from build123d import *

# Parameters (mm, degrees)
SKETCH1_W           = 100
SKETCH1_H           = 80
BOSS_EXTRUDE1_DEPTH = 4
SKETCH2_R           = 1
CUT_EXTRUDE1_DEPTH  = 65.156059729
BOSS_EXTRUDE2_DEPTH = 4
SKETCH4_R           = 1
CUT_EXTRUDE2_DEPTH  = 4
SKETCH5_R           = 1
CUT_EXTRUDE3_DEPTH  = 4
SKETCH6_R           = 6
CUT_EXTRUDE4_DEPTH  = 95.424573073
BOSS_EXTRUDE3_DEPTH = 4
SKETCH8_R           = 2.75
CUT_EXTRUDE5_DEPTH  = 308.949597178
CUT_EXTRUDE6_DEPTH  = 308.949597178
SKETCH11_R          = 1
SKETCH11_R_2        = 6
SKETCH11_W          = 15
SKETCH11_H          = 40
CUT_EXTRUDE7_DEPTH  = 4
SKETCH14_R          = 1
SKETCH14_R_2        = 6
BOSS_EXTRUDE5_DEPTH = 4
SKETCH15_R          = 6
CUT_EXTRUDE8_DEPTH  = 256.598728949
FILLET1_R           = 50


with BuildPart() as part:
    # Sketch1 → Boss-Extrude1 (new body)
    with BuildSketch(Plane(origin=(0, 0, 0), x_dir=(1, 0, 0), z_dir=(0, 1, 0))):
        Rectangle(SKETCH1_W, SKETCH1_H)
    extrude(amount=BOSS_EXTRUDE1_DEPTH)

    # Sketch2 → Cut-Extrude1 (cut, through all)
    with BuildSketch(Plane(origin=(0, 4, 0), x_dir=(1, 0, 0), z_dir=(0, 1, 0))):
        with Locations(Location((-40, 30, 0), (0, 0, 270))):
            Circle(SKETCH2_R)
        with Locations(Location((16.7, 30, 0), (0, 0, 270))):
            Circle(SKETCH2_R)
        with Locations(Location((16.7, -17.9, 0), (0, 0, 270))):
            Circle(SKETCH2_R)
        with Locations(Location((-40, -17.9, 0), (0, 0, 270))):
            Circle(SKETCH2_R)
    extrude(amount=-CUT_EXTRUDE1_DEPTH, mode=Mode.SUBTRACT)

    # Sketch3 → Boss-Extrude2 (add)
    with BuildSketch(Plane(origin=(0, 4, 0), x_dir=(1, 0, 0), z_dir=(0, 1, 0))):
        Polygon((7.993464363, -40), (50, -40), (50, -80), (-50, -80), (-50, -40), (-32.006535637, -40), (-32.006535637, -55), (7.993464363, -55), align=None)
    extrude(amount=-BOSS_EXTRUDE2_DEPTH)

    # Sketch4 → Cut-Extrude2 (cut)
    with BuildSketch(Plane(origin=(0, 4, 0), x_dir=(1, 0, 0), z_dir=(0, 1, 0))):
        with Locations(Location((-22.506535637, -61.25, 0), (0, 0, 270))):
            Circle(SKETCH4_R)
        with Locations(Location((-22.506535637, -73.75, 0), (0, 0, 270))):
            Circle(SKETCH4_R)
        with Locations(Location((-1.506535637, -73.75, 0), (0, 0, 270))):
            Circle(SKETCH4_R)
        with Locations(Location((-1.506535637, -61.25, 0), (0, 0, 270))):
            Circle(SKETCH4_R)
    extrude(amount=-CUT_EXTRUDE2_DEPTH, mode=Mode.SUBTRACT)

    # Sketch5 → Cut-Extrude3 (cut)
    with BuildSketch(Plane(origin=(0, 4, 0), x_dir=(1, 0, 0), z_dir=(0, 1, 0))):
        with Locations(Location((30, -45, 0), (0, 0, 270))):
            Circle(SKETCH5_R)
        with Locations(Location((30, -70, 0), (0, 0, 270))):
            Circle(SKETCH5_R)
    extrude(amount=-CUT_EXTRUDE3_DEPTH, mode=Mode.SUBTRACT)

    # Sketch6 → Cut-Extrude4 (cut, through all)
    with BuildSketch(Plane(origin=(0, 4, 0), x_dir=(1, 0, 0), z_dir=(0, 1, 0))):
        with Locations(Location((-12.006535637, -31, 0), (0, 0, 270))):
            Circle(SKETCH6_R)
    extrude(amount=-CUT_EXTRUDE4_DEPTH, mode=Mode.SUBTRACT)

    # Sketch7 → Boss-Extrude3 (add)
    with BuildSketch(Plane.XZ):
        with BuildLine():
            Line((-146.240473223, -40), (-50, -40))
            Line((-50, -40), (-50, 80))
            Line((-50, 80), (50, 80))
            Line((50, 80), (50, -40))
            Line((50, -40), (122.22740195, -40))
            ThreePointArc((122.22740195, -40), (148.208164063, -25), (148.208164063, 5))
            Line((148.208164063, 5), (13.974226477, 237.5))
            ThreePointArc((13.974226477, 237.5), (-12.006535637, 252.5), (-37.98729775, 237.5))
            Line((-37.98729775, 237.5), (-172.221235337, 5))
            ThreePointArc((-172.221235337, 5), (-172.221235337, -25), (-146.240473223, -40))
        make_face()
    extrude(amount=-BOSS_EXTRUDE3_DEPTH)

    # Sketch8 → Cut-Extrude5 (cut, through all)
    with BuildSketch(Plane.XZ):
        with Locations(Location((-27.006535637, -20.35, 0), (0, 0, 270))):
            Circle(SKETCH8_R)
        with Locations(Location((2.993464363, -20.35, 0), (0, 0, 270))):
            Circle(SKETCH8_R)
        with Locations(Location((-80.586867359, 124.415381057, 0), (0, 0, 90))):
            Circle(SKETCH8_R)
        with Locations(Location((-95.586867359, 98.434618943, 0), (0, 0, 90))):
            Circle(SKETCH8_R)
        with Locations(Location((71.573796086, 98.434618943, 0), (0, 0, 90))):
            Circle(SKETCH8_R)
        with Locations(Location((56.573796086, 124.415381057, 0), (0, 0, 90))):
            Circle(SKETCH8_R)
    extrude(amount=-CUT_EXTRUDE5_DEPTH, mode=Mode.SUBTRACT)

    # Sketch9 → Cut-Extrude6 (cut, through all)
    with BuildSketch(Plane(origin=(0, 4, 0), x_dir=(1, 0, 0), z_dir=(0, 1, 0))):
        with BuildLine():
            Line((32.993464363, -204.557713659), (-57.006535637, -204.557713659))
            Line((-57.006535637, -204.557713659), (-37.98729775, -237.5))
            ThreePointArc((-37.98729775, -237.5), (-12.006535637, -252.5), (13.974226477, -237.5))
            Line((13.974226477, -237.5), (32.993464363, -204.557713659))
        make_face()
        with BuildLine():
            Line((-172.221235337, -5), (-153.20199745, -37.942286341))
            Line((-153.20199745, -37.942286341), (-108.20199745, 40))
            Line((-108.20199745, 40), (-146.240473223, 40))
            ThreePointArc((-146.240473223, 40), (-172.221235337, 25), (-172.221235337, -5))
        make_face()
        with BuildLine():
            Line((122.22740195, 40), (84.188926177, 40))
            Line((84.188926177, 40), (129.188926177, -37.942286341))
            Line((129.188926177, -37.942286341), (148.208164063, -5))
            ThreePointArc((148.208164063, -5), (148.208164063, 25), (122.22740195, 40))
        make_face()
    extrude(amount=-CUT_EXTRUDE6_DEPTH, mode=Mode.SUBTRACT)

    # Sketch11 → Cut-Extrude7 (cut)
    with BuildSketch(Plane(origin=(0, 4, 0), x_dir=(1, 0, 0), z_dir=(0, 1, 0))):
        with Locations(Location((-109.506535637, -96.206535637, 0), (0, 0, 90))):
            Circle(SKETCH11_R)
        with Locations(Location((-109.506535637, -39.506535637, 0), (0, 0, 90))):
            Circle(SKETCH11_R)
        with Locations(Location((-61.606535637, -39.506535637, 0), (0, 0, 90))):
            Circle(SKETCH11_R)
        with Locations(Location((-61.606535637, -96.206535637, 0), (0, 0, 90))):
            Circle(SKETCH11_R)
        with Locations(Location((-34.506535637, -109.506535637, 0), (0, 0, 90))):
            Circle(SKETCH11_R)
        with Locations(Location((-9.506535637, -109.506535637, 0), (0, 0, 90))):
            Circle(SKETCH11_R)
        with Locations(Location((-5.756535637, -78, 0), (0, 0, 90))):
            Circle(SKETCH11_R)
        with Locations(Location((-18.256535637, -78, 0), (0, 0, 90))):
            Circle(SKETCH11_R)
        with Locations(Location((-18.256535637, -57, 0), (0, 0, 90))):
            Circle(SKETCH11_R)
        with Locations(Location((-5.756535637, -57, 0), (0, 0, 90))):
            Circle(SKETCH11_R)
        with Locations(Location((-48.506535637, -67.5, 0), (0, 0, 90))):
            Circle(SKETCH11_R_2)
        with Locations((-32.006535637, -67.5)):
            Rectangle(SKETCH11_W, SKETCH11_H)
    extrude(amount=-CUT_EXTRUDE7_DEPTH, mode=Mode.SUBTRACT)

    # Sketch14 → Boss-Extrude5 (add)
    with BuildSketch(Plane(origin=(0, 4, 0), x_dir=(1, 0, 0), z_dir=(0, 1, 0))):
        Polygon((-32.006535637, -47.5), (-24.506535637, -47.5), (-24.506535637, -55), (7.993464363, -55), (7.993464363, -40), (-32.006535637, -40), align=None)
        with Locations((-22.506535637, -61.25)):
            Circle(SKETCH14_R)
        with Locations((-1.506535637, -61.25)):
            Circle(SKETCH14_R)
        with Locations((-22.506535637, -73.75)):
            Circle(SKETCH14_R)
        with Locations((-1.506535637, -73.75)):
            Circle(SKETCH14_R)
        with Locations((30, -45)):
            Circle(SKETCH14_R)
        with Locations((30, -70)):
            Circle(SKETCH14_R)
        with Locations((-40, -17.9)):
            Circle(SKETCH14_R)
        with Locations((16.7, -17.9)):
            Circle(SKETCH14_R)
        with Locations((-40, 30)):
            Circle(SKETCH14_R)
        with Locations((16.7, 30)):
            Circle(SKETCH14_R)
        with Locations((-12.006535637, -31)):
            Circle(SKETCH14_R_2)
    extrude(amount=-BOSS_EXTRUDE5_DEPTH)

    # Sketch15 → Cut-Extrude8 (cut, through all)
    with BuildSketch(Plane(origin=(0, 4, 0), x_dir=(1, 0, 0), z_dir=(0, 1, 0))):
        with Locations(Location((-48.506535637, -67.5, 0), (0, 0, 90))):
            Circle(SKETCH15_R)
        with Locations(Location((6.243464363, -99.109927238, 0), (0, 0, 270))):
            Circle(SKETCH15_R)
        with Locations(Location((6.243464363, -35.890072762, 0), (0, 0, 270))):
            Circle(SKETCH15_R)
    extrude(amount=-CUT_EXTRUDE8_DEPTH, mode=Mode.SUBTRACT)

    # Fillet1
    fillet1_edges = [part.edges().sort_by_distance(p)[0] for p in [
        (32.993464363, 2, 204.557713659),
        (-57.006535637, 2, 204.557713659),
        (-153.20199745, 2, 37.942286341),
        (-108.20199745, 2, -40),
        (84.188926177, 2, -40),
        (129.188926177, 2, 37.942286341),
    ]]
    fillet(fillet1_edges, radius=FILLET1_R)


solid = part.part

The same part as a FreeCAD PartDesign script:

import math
import FreeCAD as App
import Part
import Sketcher

V = App.Vector
Q = App.Units.Quantity


def edges_at(feature, points):
    """Names of the edges that pass closest to the given points."""
    edges = feature.Shape.Edges
    near = lambda p: min(range(len(edges)), key=lambda i: edges[i].distToShape(Part.Vertex(*p))[0])
    return sorted({f"Edge{near(p) + 1}" for p in points})


def add_polygon(sketch, points):
    """Adds a closed chain of lines whose ends are joined by coincident constraints."""
    first, n = sketch.GeometryCount, len(points)
    for a, b in zip(points, points[1:] + points[:1]):
        sketch.addGeometry(Part.LineSegment(App.Vector(*a, 0), App.Vector(*b, 0)), False)
    for i in range(n):
        sketch.addConstraint(Sketcher.Constraint("Coincident", first + i, 2, first + (i + 1) % n, 1))

doc = App.newDocument("Part")
body = doc.addObject("PartDesign::Body", "Body")

# Sketch on XZ plane
sketch1 = doc.addObject("Sketcher::SketchObject", "Sketch")
body.addObject(sketch1)
sketch1.AttachmentSupport = (doc.XZ_Plane, [""])
sketch1.MapMode = "FlatFace"
add_polygon(sketch1, [(-50, -40), (-50, 40), (50, 40), (50, -40)])  # lines 0-3
sketch1.addConstraint([
    Sketcher.Constraint("Vertical", 0),
    Sketcher.Constraint("Horizontal", 1),
    Sketcher.Constraint("Vertical", 2),
    Sketcher.Constraint("Horizontal", 3),
    Sketcher.Constraint("Symmetric", 0, 2, 2, 2, -1, 1),
    Sketcher.Constraint("DistanceX", 1, 1, 1, 2, 100.0),
    Sketcher.Constraint("DistanceY", 0, 1, 0, 2, 80.0),
])
pad1 = doc.addObject("PartDesign::Pad", "Pad")
body.addObject(pad1)
pad1.Profile = sketch1
pad1.Length = 4
pad1.Reversed = True

# Sketch on XZ plane
sketch2 = doc.addObject("Sketcher::SketchObject", "Sketch001")
body.addObject(sketch2)
sketch2.AttachmentSupport = (doc.XZ_Plane, [""])
sketch2.MapMode = "FlatFace"
sketch2.AttachmentOffset = App.Placement(V(0, 0, -4), App.Rotation())
sketch2.addGeometry([
    Part.Circle(V(-40, -30, 0), V(0, 0, 1), 1),
    Part.Circle(V(16.7, -30, 0), V(0, 0, 1), 1),
    Part.Circle(V(16.7, 17.9, 0), V(0, 0, 1), 1),
    Part.Circle(V(-40, 17.9, 0), V(0, 0, 1), 1),
], False)
sketch2.addConstraint([
    Sketcher.Constraint("Equal", 0, 1),
    Sketcher.Constraint("Equal", 1, 2),
    Sketcher.Constraint("Equal", 2, 3),
    Sketcher.Constraint("Horizontal", 0, 3, 1, 3),
    Sketcher.Constraint("Horizontal", 2, 3, 3, 3),
    Sketcher.Constraint("Vertical", 1, 3, 2, 3),
    Sketcher.Constraint("Vertical", 0, 3, 3, 3),
    Sketcher.Constraint("Diameter", 0, 2.0),
    Sketcher.Constraint("DistanceX", 0, 3, -1, 1, 40.0),
    Sketcher.Constraint("DistanceY", 0, 3, -1, 1, 30.0),
    Sketcher.Constraint("DistanceX", -1, 1, 1, 3, 16.7),
    Sketcher.Constraint("DistanceY", -1, 1, 2, 3, 17.9),
])
pocket1 = doc.addObject("PartDesign::Pocket", "Pocket")
body.addObject(pocket1)
pocket1.Profile = sketch2
pocket1.Type = "ThroughAll"
pocket1.Reversed = True

# Sketch on XZ plane
sketch3 = doc.addObject("Sketcher::SketchObject", "Sketch002")
body.addObject(sketch3)
sketch3.AttachmentSupport = (doc.XZ_Plane, [""])
sketch3.MapMode = "FlatFace"
sketch3.AttachmentOffset = App.Placement(V(0, 0, -4), App.Rotation())
add_polygon(sketch3, [(50, 40), (8, 40), (8, 55), (-32, 55), (-32, 40), (-50, 40), (-50, 80), (50, 80)])  # lines 0-7
sketch3.addConstraint([
    Sketcher.Constraint("Horizontal", 0),
    Sketcher.Constraint("Vertical", 1),
    Sketcher.Constraint("Horizontal", 2),
    Sketcher.Constraint("Vertical", 3),
    Sketcher.Constraint("Horizontal", 4),
    Sketcher.Constraint("Vertical", 5),
    Sketcher.Constraint("Horizontal", 6),
    Sketcher.Constraint("Vertical", 7),
    Sketcher.Constraint("Symmetric", 4, 2, 7, 2, -2),
    Sketcher.Constraint("Equal", 2, 5),
    Sketcher.Constraint("DistanceX", 2, 2, 2, 1, 40.0),
    Sketcher.Constraint("DistanceX", 6, 1, 6, 2, 100.0),
    Sketcher.Constraint("DistanceY", 1, 1, 1, 2, 15.0),
    Sketcher.Constraint("DistanceY", -1, 1, 0, 2, 40.0),
    Sketcher.Constraint("DistanceX", 0, 2, 0, 1, 42.006536),
])
pad2 = doc.addObject("PartDesign::Pad", "Pad001")
body.addObject(pad2)
pad2.Profile = sketch3
pad2.Length = 4

# Sketch on XZ plane
sketch4 = doc.addObject("Sketcher::SketchObject", "Sketch003")
body.addObject(sketch4)
sketch4.AttachmentSupport = (doc.XZ_Plane, [""])
sketch4.MapMode = "FlatFace"
sketch4.AttachmentOffset = App.Placement(V(0, 0, -4), App.Rotation())
sketch4.addGeometry([
    Part.Circle(V(-22.5, 61.2, 0), V(0, 0, 1), 1),
    Part.Circle(V(-22.5, 73.8, 0), V(0, 0, 1), 1),
    Part.Circle(V(-1.5, 73.8, 0), V(0, 0, 1), 1),
    Part.Circle(V(-1.5, 61.2, 0), V(0, 0, 1), 1),
], False)
sketch4.addConstraint([
    Sketcher.Constraint("Equal", 0, 1),
    Sketcher.Constraint("Equal", 1, 2),
    Sketcher.Constraint("Equal", 2, 3),
    Sketcher.Constraint("Horizontal", 1, 3, 2, 3),
    Sketcher.Constraint("Horizontal", 0, 3, 3, 3),
    Sketcher.Constraint("Vertical", 0, 3, 1, 3),
    Sketcher.Constraint("Vertical", 2, 3, 3, 3),
    Sketcher.Constraint("Diameter", 0, 2.0),
    Sketcher.Constraint("DistanceX", 1, 3, 2, 3, 21.0),
    Sketcher.Constraint("DistanceY", 0, 3, 1, 3, 12.5),
    Sketcher.Constraint("DistanceY", -1, 1, 0, 3, 61.25),
    Sketcher.Constraint("DistanceX", 0, 3, -1, 1, 22.506536),
])
pocket2 = doc.addObject("PartDesign::Pocket", "Pocket001")
body.addObject(pocket2)
pocket2.Profile = sketch4
pocket2.Length = 4
pocket2.Reversed = True

# Sketch on XZ plane
sketch5 = doc.addObject("Sketcher::SketchObject", "Sketch004")
body.addObject(sketch5)
sketch5.AttachmentSupport = (doc.XZ_Plane, [""])
sketch5.MapMode = "FlatFace"
sketch5.AttachmentOffset = App.Placement(V(0, 0, -4), App.Rotation())
sketch5.addGeometry([
    Part.Circle(V(30, 45, 0), V(0, 0, 1), 1),
    Part.Circle(V(30, 70, 0), V(0, 0, 1), 1),
], False)
sketch5.addConstraint([
    Sketcher.Constraint("Equal", 0, 1),
    Sketcher.Constraint("Vertical", 0, 3, 1, 3),
    Sketcher.Constraint("Diameter", 0, 2.0),
    Sketcher.Constraint("DistanceX", -1, 1, 0, 3, 30.0),
    Sketcher.Constraint("DistanceY", -1, 1, 0, 3, 45.0),
    Sketcher.Constraint("DistanceY", -1, 1, 1, 3, 70.0),
])
pocket3 = doc.addObject("PartDesign::Pocket", "Pocket002")
body.addObject(pocket3)
pocket3.Profile = sketch5
pocket3.Length = 4
pocket3.Reversed = True

# Sketch on XZ plane
sketch6 = doc.addObject("Sketcher::SketchObject", "Sketch005")
body.addObject(sketch6)
sketch6.AttachmentSupport = (doc.XZ_Plane, [""])
sketch6.MapMode = "FlatFace"
sketch6.AttachmentOffset = App.Placement(V(0, 0, -4), App.Rotation())
sketch6.addGeometry(Part.Circle(V(-12, 31, 0), V(0, 0, 1), 6), False)
sketch6.addConstraint([
    Sketcher.Constraint("Diameter", 0, 12.0),
    Sketcher.Constraint("DistanceY", -1, 1, 0, 3, 31.0),
    Sketcher.Constraint("DistanceX", 0, 3, -1, 1, 12.006536),
])
pocket4 = doc.addObject("PartDesign::Pocket", "Pocket003")
body.addObject(pocket4)
pocket4.Profile = sketch6
pocket4.Type = "ThroughAll"
pocket4.Reversed = True

# Sketch on XZ plane
sketch7 = doc.addObject("Sketcher::SketchObject", "Sketch006")
body.addObject(sketch7)
sketch7.AttachmentSupport = (doc.XZ_Plane, [""])
sketch7.MapMode = "FlatFace"
sketch7.addGeometry([
    Part.LineSegment(V(-146, -40, 0), V(-50, -40, 0)),  # 0
    Part.LineSegment(V(-50, -40, 0), V(-50, 80, 0)),  # 1
    Part.LineSegment(V(-50, 80, 0), V(50, 80, 0)),  # 2
    Part.LineSegment(V(50, 80, 0), V(50, -40, 0)),  # 3
    Part.LineSegment(V(50, -40, 0), V(122, -40, 0)),  # 4
    Part.ArcOfCircle(Part.Circle(V(122, -10, 0), V(0, 0, 1), 30), math.radians(-90), math.radians(30)),  # 5
    Part.LineSegment(V(148, 5, 0), V(14, 238, 0)),  # 6
    Part.ArcOfCircle(Part.Circle(V(-12, 222, 0), V(0, 0, 1), 30), math.radians(30), math.radians(150)),  # 7
    Part.LineSegment(V(-38, 238, 0), V(-172, 5, 0)),  # 8
    Part.ArcOfCircle(Part.Circle(V(-146, -10, 0), V(0, 0, 1), 30), math.radians(150), math.radians(270)),  # 9
], False)
sketch7.addConstraint([
    Sketcher.Constraint("Coincident", 0, 2, 1, 1),
    Sketcher.Constraint("Coincident", 1, 2, 2, 1),
    Sketcher.Constraint("Coincident", 2, 2, 3, 1),
    Sketcher.Constraint("Coincident", 3, 2, 4, 1),
    Sketcher.Constraint("Tangent", 4, 2, 5, 1),
    Sketcher.Constraint("Tangent", 5, 2, 6, 1),
    Sketcher.Constraint("Tangent", 6, 2, 7, 1),
    Sketcher.Constraint("Tangent", 7, 2, 8, 1),
    Sketcher.Constraint("Tangent", 8, 2, 9, 1),
    Sketcher.Constraint("Tangent", 9, 2, 0, 1),
    Sketcher.Constraint("Horizontal", 0),
    Sketcher.Constraint("Vertical", 1),
    Sketcher.Constraint("Horizontal", 2),
    Sketcher.Constraint("Vertical", 3),
    Sketcher.Constraint("Horizontal", 4),
    Sketcher.Constraint("Equal", 5, 7),
    Sketcher.Constraint("Equal", 7, 9),
    Sketcher.Constraint("Symmetric", 0, 2, 3, 2, -2),
    Sketcher.Constraint("Horizontal", 6, 2, 7, 2),
    Sketcher.Constraint("Radius", 5, 30.0),
    Sketcher.Constraint("DistanceX", 2, 1, 2, 2, 100.0),
    Sketcher.Constraint("DistanceY", 1, 1, 1, 2, 120.0),
    Sketcher.Constraint("Angle", 6, Q("120 deg")),
    Sketcher.Constraint("DistanceY", 5, 3, -1, 1, 10.0),
    Sketcher.Constraint("DistanceY", -1, 1, 7, 3, 222.5),
    Sketcher.Constraint("DistanceX", 4, 1, 4, 2, 72.227402),
])
pad3 = doc.addObject("PartDesign::Pad", "Pad002")
body.addObject(pad3)
pad3.Profile = sketch7
pad3.Length = 4
pad3.Reversed = True

# Sketch on XZ plane
sketch8 = doc.addObject("Sketcher::SketchObject", "Sketch007")
body.addObject(sketch8)
sketch8.AttachmentSupport = (doc.XZ_Plane, [""])
sketch8.MapMode = "FlatFace"
sketch8.addGeometry([
    Part.Circle(V(-27, -20.4, 0), V(0, 0, 1), 2.8),  # 0
    Part.Circle(V(3, -20.4, 0), V(0, 0, 1), 2.8),  # 1
    Part.Circle(V(-80.6, 124.4, 0), V(0, 0, 1), 2.8),  # 2
    Part.Circle(V(-95.6, 98.4, 0), V(0, 0, 1), 2.8),  # 3
    Part.Circle(V(71.6, 98.4, 0), V(0, 0, 1), 2.8),  # 4
    Part.Circle(V(56.6, 124.4, 0), V(0, 0, 1), 2.8),  # 5
], False)
sketch8.addConstraint([
    Sketcher.Constraint("Equal", 0, 1),
    Sketcher.Constraint("Equal", 1, 2),
    Sketcher.Constraint("Equal", 2, 3),
    Sketcher.Constraint("Equal", 3, 4),
    Sketcher.Constraint("Equal", 4, 5),
    Sketcher.Constraint("Horizontal", 0, 3, 1, 3),
    Sketcher.Constraint("Horizontal", 3, 3, 4, 3),
    Sketcher.Constraint("Horizontal", 2, 3, 5, 3),
    Sketcher.Constraint("Diameter", 0, 5.5),
    Sketcher.Constraint("DistanceX", 0, 3, 1, 3, 30.0),
    Sketcher.Constraint("DistanceX", 3, 3, 2, 3, 15.0),
    Sketcher.Constraint("DistanceX", 5, 3, 4, 3, 15.0),
    Sketcher.Constraint("DistanceY", 0, 3, -1, 1, 20.35),
    Sketcher.Constraint("DistanceY", -1, 1, 2, 3, 124.415381),
    Sketcher.Constraint("DistanceY", -1, 1, 3, 3, 98.434619),
    Sketcher.Constraint("DistanceX", 2, 3, 0, 3, 53.580332),
    Sketcher.Constraint("DistanceX", 1, 3, 4, 3, 68.580332),
    Sketcher.Constraint("DistanceX", 0, 3, -1, 1, 27.006536),
])
pocket5 = doc.addObject("PartDesign::Pocket", "Pocket004")
body.addObject(pocket5)
pocket5.Profile = sketch8
pocket5.Type = "ThroughAll"

# Sketch on XZ plane
sketch9 = doc.addObject("Sketcher::SketchObject", "Sketch008")
body.addObject(sketch9)
sketch9.AttachmentSupport = (doc.XZ_Plane, [""])
sketch9.MapMode = "FlatFace"
sketch9.AttachmentOffset = App.Placement(V(0, 0, -4), App.Rotation())
sketch9.addGeometry([
    Part.LineSegment(V(33, 205, 0), V(-57, 205, 0)),  # 0
    Part.LineSegment(V(-57, 205, 0), V(-38, 238, 0)),  # 1
    Part.ArcOfCircle(Part.Circle(V(-12, 222, 0), V(0, 0, 1), 30), math.radians(30), math.radians(150)),  # 2
    Part.LineSegment(V(14, 238, 0), V(33, 205, 0)),  # 3
    Part.LineSegment(V(-172, 5, 0), V(-153, 38, 0)),  # 4
    Part.LineSegment(V(-153, 38, 0), V(-108, -40, 0)),  # 5
    Part.LineSegment(V(-108, -40, 0), V(-146, -40, 0)),  # 6
    Part.ArcOfCircle(Part.Circle(V(-146, -10, 0), V(0, 0, 1), 30), math.radians(150), math.radians(270)),  # 7
    Part.LineSegment(V(122, -40, 0), V(84, -40, 0)),  # 8
    Part.LineSegment(V(84, -40, 0), V(129, 38, 0)),  # 9
    Part.LineSegment(V(129, 38, 0), V(148, 5, 0)),  # 10
    Part.ArcOfCircle(Part.Circle(V(122, -10, 0), V(0, 0, 1), 30), math.radians(-90), math.radians(30)),  # 11
], False)
sketch9.addConstraint([
    Sketcher.Constraint("Coincident", 0, 2, 1, 1),
    Sketcher.Constraint("Tangent", 1, 2, 2, 2),
    Sketcher.Constraint("Tangent", 2, 1, 3, 1),
    Sketcher.Constraint("Coincident", 3, 2, 0, 1),
    Sketcher.Constraint("Coincident", 4, 2, 5, 1),
    Sketcher.Constraint("Coincident", 5, 2, 6, 1),
    Sketcher.Constraint("Tangent", 6, 2, 7, 2),
    Sketcher.Constraint("Tangent", 7, 1, 4, 1),
    Sketcher.Constraint("Coincident", 8, 2, 9, 1),
    Sketcher.Constraint("Coincident", 9, 2, 10, 1),
    Sketcher.Constraint("Tangent", 10, 2, 11, 2),
    Sketcher.Constraint("Tangent", 11, 1, 8, 1),
    Sketcher.Constraint("Horizontal", 0),
    Sketcher.Constraint("Horizontal", 6),
    Sketcher.Constraint("Horizontal", 8),
    Sketcher.Constraint("Equal", 2, 7),
    Sketcher.Constraint("Equal", 7, 11),
    Sketcher.Constraint("Parallel", 1, 4),
    Sketcher.Constraint("Parallel", 3, 5),
    Sketcher.Constraint("Parallel", 4, 9),
    Sketcher.Constraint("Parallel", 5, 10),
    Sketcher.Constraint("Horizontal", 7, 3, 11, 3),
    Sketcher.Constraint("Horizontal", 1, 2, 2, 1),
    Sketcher.Constraint("Horizontal", 4, 2, 9, 2),
    Sketcher.Constraint("Equal", 3, 4),
    Sketcher.Constraint("Radius", 2, 30.0),
    Sketcher.Constraint("DistanceX", 0, 2, 0, 1, 90.0),
    Sketcher.Constraint("Angle", 1, Q("60 deg")),
    Sketcher.Constraint("DistanceY", 7, 3, -1, 1, 10.0),
    Sketcher.Constraint("DistanceY", -1, 1, 2, 3, 222.5),
    Sketcher.Constraint("DistanceX", -1, 1, 11, 3, 122.227402),
    Sketcher.Constraint("DistanceX", 1, 2, 11, 3, 160.2147),
    Sketcher.Constraint("DistanceX", 7, 3, 2, 1, 160.2147),
])
pocket6 = doc.addObject("PartDesign::Pocket", "Pocket005")
body.addObject(pocket6)
pocket6.Profile = sketch9
pocket6.Type = "ThroughAll"
pocket6.Reversed = True

# Sketch on XZ plane
sketch10 = doc.addObject("Sketcher::SketchObject", "Sketch009")
body.addObject(sketch10)
sketch10.AttachmentSupport = (doc.XZ_Plane, [""])
sketch10.MapMode = "FlatFace"
sketch10.AttachmentOffset = App.Placement(V(0, 0, -4), App.Rotation())
sketch10.addGeometry(Part.Circle(V(-109.5, 96.2, 0), V(0, 0, 1), 1), False)  # 0
sketch10.addGeometry(Part.Circle(V(-109.5, 39.5, 0), V(0, 0, 1), 1), False)  # 1
sketch10.addGeometry(Part.Circle(V(-61.6, 39.5, 0), V(0, 0, 1), 1), False)  # 2
sketch10.addGeometry(Part.Circle(V(-61.6, 96.2, 0), V(0, 0, 1), 1), False)  # 3
sketch10.addGeometry(Part.Circle(V(-34.5, 109.5, 0), V(0, 0, 1), 1), False)  # 4
sketch10.addGeometry(Part.Circle(V(-9.5, 109.5, 0), V(0, 0, 1), 1), False)  # 5
sketch10.addGeometry(Part.Circle(V(-5.8, 78, 0), V(0, 0, 1), 1), False)  # 6
sketch10.addGeometry(Part.Circle(V(-18.3, 78, 0), V(0, 0, 1), 1), False)  # 7
sketch10.addGeometry(Part.Circle(V(-18.3, 57, 0), V(0, 0, 1), 1), False)  # 8
sketch10.addGeometry(Part.Circle(V(-5.8, 57, 0), V(0, 0, 1), 1), False)  # 9
sketch10.addGeometry(Part.Circle(V(-48.5, 67.5, 0), V(0, 0, 1), 6), False)  # 10
add_polygon(sketch10, [(-39.5, 47.5), (-39.5, 87.5), (-24.5, 87.5), (-24.5, 47.5)])  # lines 11-14
sketch10.addConstraint([
    Sketcher.Constraint("Vertical", 11),
    Sketcher.Constraint("Horizontal", 12),
    Sketcher.Constraint("Vertical", 13),
    Sketcher.Constraint("Horizontal", 14),
    Sketcher.Constraint("Equal", 0, 1),
    Sketcher.Constraint("Equal", 1, 2),
    Sketcher.Constraint("Equal", 2, 3),
    Sketcher.Constraint("Equal", 3, 4),
    Sketcher.Constraint("Equal", 4, 5),
    Sketcher.Constraint("Equal", 5, 6),
    Sketcher.Constraint("Equal", 6, 7),
    Sketcher.Constraint("Equal", 7, 8),
    Sketcher.Constraint("Equal", 8, 9),
    Sketcher.Constraint("Horizontal", 1, 3, 2, 3),
    Sketcher.Constraint("Horizontal", 0, 3, 3, 3),
    Sketcher.Constraint("Horizontal", 4, 3, 5, 3),
    Sketcher.Constraint("Horizontal", 6, 3, 7, 3),
    Sketcher.Constraint("Horizontal", 8, 3, 9, 3),
    Sketcher.Constraint("Vertical", 0, 3, 1, 3),
    Sketcher.Constraint("Vertical", 2, 3, 3, 3),
    Sketcher.Constraint("Vertical", 7, 3, 8, 3),
    Sketcher.Constraint("Vertical", 6, 3, 9, 3),
    Sketcher.Constraint("Diameter", 0, 2.0),
    Sketcher.Constraint("Diameter", 10, 12.0),
    Sketcher.Constraint("DistanceX", 12, 1, 12, 2, 15.0),
    Sketcher.Constraint("DistanceY", 11, 1, 11, 2, 40.0),
    Sketcher.Constraint("DistanceY", -1, 1, 6, 3, 78.0),
    Sketcher.Constraint("DistanceY", -1, 1, 8, 3, 57.0),
    Sketcher.Constraint("DistanceY", 2, 3, 4, 3, 70.0),
    Sketcher.Constraint("DistanceX", 0, 3, 4, 3, 75.0),
    Sketcher.Constraint("DistanceX", 4, 3, 5, 3, 25.0),
    Sketcher.Constraint("DistanceX", 10, 3, 11, 2, 9.0),
    Sketcher.Constraint("DistanceY", 10, 3, 11, 2, 20.0),
    Sketcher.Constraint("DistanceX", 11, 2, 4, 3, 5.0),
    Sketcher.Constraint("DistanceY", -1, 1, 10, 3, 67.5),
    Sketcher.Constraint("DistanceY", 1, 3, 0, 3, 56.7),
    Sketcher.Constraint("DistanceX", 1, 3, 2, 3, 47.9),
    Sketcher.Constraint("DistanceX", 7, 3, 6, 3, 12.5),
    Sketcher.Constraint("DistanceX", 5, 3, 6, 3, 3.75),
    Sketcher.Constraint("DistanceX", 0, 3, -1, 1, 109.506536),
    Sketcher.Constraint("DistanceY", -1, 1, 0, 3, 96.206536),
])
pocket7 = doc.addObject("PartDesign::Pocket", "Pocket006")
body.addObject(pocket7)
pocket7.Profile = sketch10
pocket7.Length = 4
pocket7.Reversed = True

# Sketch on XZ plane
sketch11 = doc.addObject("Sketcher::SketchObject", "Sketch010")
body.addObject(sketch11)
sketch11.AttachmentSupport = (doc.XZ_Plane, [""])
sketch11.MapMode = "FlatFace"
sketch11.AttachmentOffset = App.Placement(V(0, 0, -4), App.Rotation())
add_polygon(sketch11, [(-32, 47.5), (-24.5, 47.5), (-24.5, 55), (8, 55), (8, 40), (-32, 40)])  # lines 0-5
sketch11.addGeometry(Part.Circle(V(-22.5, 61.2, 0), V(0, 0, 1), 1), False)  # 6
sketch11.addGeometry(Part.Circle(V(-1.5, 61.2, 0), V(0, 0, 1), 1), False)  # 7
sketch11.addGeometry(Part.Circle(V(-22.5, 73.8, 0), V(0, 0, 1), 1), False)  # 8
sketch11.addGeometry(Part.Circle(V(-1.5, 73.8, 0), V(0, 0, 1), 1), False)  # 9
sketch11.addGeometry(Part.Circle(V(30, 45, 0), V(0, 0, 1), 1), False)  # 10
sketch11.addGeometry(Part.Circle(V(30, 70, 0), V(0, 0, 1), 1), False)  # 11
sketch11.addGeometry(Part.Circle(V(-40, 17.9, 0), V(0, 0, 1), 1), False)  # 12
sketch11.addGeometry(Part.Circle(V(16.7, 17.9, 0), V(0, 0, 1), 1), False)  # 13
sketch11.addGeometry(Part.Circle(V(-40, -30, 0), V(0, 0, 1), 1), False)  # 14
sketch11.addGeometry(Part.Circle(V(16.7, -30, 0), V(0, 0, 1), 1), False)  # 15
sketch11.addGeometry(Part.Circle(V(-12, 31, 0), V(0, 0, 1), 6), False)  # 16
sketch11.addConstraint([
    Sketcher.Constraint("Horizontal", 0),
    Sketcher.Constraint("Vertical", 1),
    Sketcher.Constraint("Horizontal", 2),
    Sketcher.Constraint("Vertical", 3),
    Sketcher.Constraint("Horizontal", 4),
    Sketcher.Constraint("Vertical", 5),
    Sketcher.Constraint("Equal", 6, 7),
    Sketcher.Constraint("Equal", 7, 8),
    Sketcher.Constraint("Equal", 8, 9),
    Sketcher.Constraint("Equal", 9, 10),
    Sketcher.Constraint("Equal", 10, 11),
    Sketcher.Constraint("Equal", 11, 12),
    Sketcher.Constraint("Equal", 12, 13),
    Sketcher.Constraint("Equal", 13, 14),
    Sketcher.Constraint("Equal", 14, 15),
    Sketcher.Constraint("Horizontal", 6, 3, 7, 3),
    Sketcher.Constraint("Horizontal", 8, 3, 9, 3),
    Sketcher.Constraint("Horizontal", 12, 3, 13, 3),
    Sketcher.Constraint("Horizontal", 14, 3, 15, 3),
    Sketcher.Constraint("Vertical", 6, 3, 8, 3),
    Sketcher.Constraint("Vertical", 7, 3, 9, 3),
    Sketcher.Constraint("Vertical", 10, 3, 11, 3),
    Sketcher.Constraint("Vertical", 12, 3, 14, 3),
    Sketcher.Constraint("Vertical", 13, 3, 15, 3),
    Sketcher.Constraint("Equal", 0, 1),
    Sketcher.Constraint("Equal", 1, 5),
    Sketcher.Constraint("Diameter", 6, 2.0),
    Sketcher.Constraint("Diameter", 16, 12.0),
    Sketcher.Constraint("DistanceX", 4, 2, 4, 1, 40.0),
    Sketcher.Constraint("DistanceY", 3, 2, 3, 1, 15.0),
    Sketcher.Constraint("DistanceX", -1, 1, 10, 3, 30.0),
    Sketcher.Constraint("DistanceY", -1, 1, 10, 3, 45.0),
    Sketcher.Constraint("DistanceY", -1, 1, 11, 3, 70.0),
    Sketcher.Constraint("DistanceX", 12, 3, -1, 1, 40.0),
    Sketcher.Constraint("DistanceY", 14, 3, -1, 1, 30.0),
    Sketcher.Constraint("DistanceY", -1, 1, 16, 3, 31.0),
    Sketcher.Constraint("DistanceY", -1, 1, 1, 2, 55.0),
    Sketcher.Constraint("DistanceX", 6, 3, 7, 3, 21.0),
    Sketcher.Constraint("DistanceX", 0, 2, 6, 3, 2.0),
    Sketcher.Constraint("DistanceX", 16, 3, 3, 2, 20.0),
    Sketcher.Constraint("DistanceY", -1, 1, 12, 3, 17.9),
    Sketcher.Constraint("DistanceX", -1, 1, 13, 3, 16.7),
    Sketcher.Constraint("DistanceY", 6, 3, 8, 3, 12.5),
    Sketcher.Constraint("DistanceY", -1, 1, 6, 3, 61.25),
    Sketcher.Constraint("DistanceX", 6, 3, -1, 1, 22.506536),
])
pad4 = doc.addObject("PartDesign::Pad", "Pad003")
body.addObject(pad4)
pad4.Profile = sketch11
pad4.Length = 4

# Sketch on XZ plane
sketch12 = doc.addObject("Sketcher::SketchObject", "Sketch011")
body.addObject(sketch12)
sketch12.AttachmentSupport = (doc.XZ_Plane, [""])
sketch12.MapMode = "FlatFace"
sketch12.AttachmentOffset = App.Placement(V(0, 0, -4), App.Rotation())
sketch12.addGeometry([
    Part.Circle(V(-49, 68, 0), V(0, 0, 1), 6),
    Part.Circle(V(6, 99, 0), V(0, 0, 1), 6),
    Part.Circle(V(6, 36, 0), V(0, 0, 1), 6),
], False)
sketch12.addConstraint([
    Sketcher.Constraint("Equal", 0, 1),
    Sketcher.Constraint("Equal", 1, 2),
    Sketcher.Constraint("Vertical", 1, 3, 2, 3),
    Sketcher.Constraint("Diameter", 0, 12.0),
    Sketcher.Constraint("DistanceY", -1, 1, 0, 3, 67.5),
    Sketcher.Constraint("DistanceX", 0, 3, 1, 3, 54.75),
    Sketcher.Constraint("DistanceX", 0, 3, -1, 1, 48.506536),
    Sketcher.Constraint("DistanceY", -1, 1, 1, 3, 99.109927),
    Sketcher.Constraint("DistanceY", -1, 1, 2, 3, 35.890073),
])
pocket8 = doc.addObject("PartDesign::Pocket", "Pocket007")
body.addObject(pocket8)
pocket8.Profile = sketch12
pocket8.Type = "ThroughAll"
pocket8.Reversed = True
doc.recompute()

fillet = doc.addObject("PartDesign::Fillet", "Fillet")
body.addObject(fillet)
fillet.Base = (pocket8, edges_at(pocket8, [
    (32.993, 2, 204.558),
    (-57.007, 2, 204.558),
    (-153.202, 2, 37.942),
    (-108.202, 2, -40),
    (84.189, 2, -40),
    (129.189, 2, 37.942),
]))
fillet.Radius = 50

doc.recompute()
